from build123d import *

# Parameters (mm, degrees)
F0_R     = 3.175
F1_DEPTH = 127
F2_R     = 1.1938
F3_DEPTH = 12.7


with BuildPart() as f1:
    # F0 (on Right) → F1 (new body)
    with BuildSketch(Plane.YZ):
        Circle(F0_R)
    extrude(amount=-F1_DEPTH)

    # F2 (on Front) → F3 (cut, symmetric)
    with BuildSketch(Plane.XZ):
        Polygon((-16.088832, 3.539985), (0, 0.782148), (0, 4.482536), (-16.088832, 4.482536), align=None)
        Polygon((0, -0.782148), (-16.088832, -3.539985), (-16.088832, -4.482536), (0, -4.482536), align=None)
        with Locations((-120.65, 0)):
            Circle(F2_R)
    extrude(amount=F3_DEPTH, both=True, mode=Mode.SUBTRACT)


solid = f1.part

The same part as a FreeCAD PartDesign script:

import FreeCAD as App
import Part
import Sketcher
Q = App.Units.Quantity

doc = App.newDocument("Part")
body = doc.addObject("PartDesign::Body", "Body")

sketch1 = doc.addObject("Sketcher::SketchObject", "Sketch")
body.addObject(sketch1)
sketch1.AttachmentSupport = (doc.YZ_Plane, [""])
sketch1.MapMode = "FlatFace"
sketch1.addGeometry(Part.Circle(App.Vector(0, 0, 0), App.Vector(0, 0, 1), 3.175), False)
sketch1.addConstraint(Sketcher.Constraint("Coincident", 0, 3, -1, 1))
sketch1.addConstraint(Sketcher.Constraint("Diameter", 0, Q("0.25 in")))
pad1 = doc.addObject("PartDesign::Pad", "Pad")
body.addObject(pad1)
pad1.Profile = sketch1
pad1.Length = Q("5 in")
pad1.Reversed = True

sketch2 = doc.addObject("Sketcher::SketchObject", "Sketch001")
body.addObject(sketch2)
sketch2.AttachmentSupport = (doc.XZ_Plane, [""])
sketch2.MapMode = "FlatFace"
sketch2.addGeometry(Part.LineSegment(App.Vector(-16.088832, 3.539985, 0), App.Vector(0, 0.782148, 0)), False)
sketch2.addGeometry(Part.LineSegment(App.Vector(0, 0.782148, 0), App.Vector(0, 4.482536, 0)), False)
sketch2.addGeometry(Part.LineSegment(App.Vector(0, 4.482536, 0), App.Vector(-16.088832, 4.482536, 0)), False)
sketch2.addGeometry(Part.LineSegment(App.Vector(-16.088832, 4.482536, 0), App.Vector(-16.088832, 3.539985, 0)), False)
sketch2.addGeometry(Part.LineSegment(App.Vector(0, -0.782148, 0), App.Vector(-16.088832, -3.539985, 0)), False)
sketch2.addGeometry(Part.LineSegment(App.Vector(-16.088832, -3.539985, 0), App.Vector(-16.088832, -4.482536, 0)), False)
sketch2.addGeometry(Part.LineSegment(App.Vector(-16.088832, -4.482536, 0), App.Vector(0, -4.482536, 0)), False)
sketch2.addGeometry(Part.LineSegment(App.Vector(0, -4.482536, 0), App.Vector(0, -0.782148, 0)), False)
sketch2.addGeometry(Part.Circle(App.Vector(-120.65, 0, 0), App.Vector(0, 0, 1), 1.1938), False)
sketch2.addConstraint(Sketcher.Constraint("Coincident", 0, 2, 1, 1))
sketch2.addConstraint(Sketcher.Constraint("Coincident", 1, 2, 2, 1))
sketch2.addConstraint(Sketcher.Constraint("Coincident", 2, 2, 3, 1))
sketch2.addConstraint(Sketcher.Constraint("Coincident", 3, 2, 0, 1))
sketch2.addConstraint(Sketcher.Constraint("Coincident", 4, 2, 5, 1))
sketch2.addConstraint(Sketcher.Constraint("Coincident", 5, 2, 6, 1))
sketch2.addConstraint(Sketcher.Constraint("Coincident", 6, 2, 7, 1))
sketch2.addConstraint(Sketcher.Constraint("Coincident", 7, 2, 4, 1))
sketch2.addConstraint(Sketcher.Constraint("Vertical", 1))
sketch2.addConstraint(Sketcher.Constraint("Horizontal", 2))
sketch2.addConstraint(Sketcher.Constraint("Vertical", 3))
sketch2.addConstraint(Sketcher.Constraint("Vertical", 5))
sketch2.addConstraint(Sketcher.Constraint("Horizontal", 6))
sketch2.addConstraint(Sketcher.Constraint("Vertical", 7))
sketch2.addConstraint(Sketcher.Constraint("Symmetric", 1, 2, 6, 2, -1, 1))
sketch2.addConstraint(Sketcher.Constraint("Symmetric", 3, 2, 4, 2, -1))
sketch2.addConstraint(Sketcher.Constraint("Symmetric", 0, 2, 7, 2, -1))
sketch2.addConstraint(Sketcher.Constraint("PointOnObject", 8, 3, -1))
sketch2.addConstraint(Sketcher.Constraint("Diameter", 8, Q("0.094 in")))
sketch2.addConstraint(Sketcher.Constraint("DistanceX", 8, 3, -1, 1, Q("4.75 in")))
sketch2.addConstraint(Sketcher.Constraint("DistanceX", 2, 2, 2, 1, 16.088832))
sketch2.addConstraint(Sketcher.Constraint("DistanceY", 3, 2, 3, 1, 0.942551))
sketch2.addConstraint(Sketcher.Constraint("DistanceY", 1, 1, 1, 2, 3.700388))
sketch2.addConstraint(Sketcher.Constraint("DistanceY", 4, 2, 3, 2, 7.07997))
pocket1 = doc.addObject("PartDesign::Pocket", "Pocket")
body.addObject(pocket1)
pocket1.Profile = sketch2
pocket1.Length = Q("1 in")
pocket1.Midplane = True

doc.recompute()
